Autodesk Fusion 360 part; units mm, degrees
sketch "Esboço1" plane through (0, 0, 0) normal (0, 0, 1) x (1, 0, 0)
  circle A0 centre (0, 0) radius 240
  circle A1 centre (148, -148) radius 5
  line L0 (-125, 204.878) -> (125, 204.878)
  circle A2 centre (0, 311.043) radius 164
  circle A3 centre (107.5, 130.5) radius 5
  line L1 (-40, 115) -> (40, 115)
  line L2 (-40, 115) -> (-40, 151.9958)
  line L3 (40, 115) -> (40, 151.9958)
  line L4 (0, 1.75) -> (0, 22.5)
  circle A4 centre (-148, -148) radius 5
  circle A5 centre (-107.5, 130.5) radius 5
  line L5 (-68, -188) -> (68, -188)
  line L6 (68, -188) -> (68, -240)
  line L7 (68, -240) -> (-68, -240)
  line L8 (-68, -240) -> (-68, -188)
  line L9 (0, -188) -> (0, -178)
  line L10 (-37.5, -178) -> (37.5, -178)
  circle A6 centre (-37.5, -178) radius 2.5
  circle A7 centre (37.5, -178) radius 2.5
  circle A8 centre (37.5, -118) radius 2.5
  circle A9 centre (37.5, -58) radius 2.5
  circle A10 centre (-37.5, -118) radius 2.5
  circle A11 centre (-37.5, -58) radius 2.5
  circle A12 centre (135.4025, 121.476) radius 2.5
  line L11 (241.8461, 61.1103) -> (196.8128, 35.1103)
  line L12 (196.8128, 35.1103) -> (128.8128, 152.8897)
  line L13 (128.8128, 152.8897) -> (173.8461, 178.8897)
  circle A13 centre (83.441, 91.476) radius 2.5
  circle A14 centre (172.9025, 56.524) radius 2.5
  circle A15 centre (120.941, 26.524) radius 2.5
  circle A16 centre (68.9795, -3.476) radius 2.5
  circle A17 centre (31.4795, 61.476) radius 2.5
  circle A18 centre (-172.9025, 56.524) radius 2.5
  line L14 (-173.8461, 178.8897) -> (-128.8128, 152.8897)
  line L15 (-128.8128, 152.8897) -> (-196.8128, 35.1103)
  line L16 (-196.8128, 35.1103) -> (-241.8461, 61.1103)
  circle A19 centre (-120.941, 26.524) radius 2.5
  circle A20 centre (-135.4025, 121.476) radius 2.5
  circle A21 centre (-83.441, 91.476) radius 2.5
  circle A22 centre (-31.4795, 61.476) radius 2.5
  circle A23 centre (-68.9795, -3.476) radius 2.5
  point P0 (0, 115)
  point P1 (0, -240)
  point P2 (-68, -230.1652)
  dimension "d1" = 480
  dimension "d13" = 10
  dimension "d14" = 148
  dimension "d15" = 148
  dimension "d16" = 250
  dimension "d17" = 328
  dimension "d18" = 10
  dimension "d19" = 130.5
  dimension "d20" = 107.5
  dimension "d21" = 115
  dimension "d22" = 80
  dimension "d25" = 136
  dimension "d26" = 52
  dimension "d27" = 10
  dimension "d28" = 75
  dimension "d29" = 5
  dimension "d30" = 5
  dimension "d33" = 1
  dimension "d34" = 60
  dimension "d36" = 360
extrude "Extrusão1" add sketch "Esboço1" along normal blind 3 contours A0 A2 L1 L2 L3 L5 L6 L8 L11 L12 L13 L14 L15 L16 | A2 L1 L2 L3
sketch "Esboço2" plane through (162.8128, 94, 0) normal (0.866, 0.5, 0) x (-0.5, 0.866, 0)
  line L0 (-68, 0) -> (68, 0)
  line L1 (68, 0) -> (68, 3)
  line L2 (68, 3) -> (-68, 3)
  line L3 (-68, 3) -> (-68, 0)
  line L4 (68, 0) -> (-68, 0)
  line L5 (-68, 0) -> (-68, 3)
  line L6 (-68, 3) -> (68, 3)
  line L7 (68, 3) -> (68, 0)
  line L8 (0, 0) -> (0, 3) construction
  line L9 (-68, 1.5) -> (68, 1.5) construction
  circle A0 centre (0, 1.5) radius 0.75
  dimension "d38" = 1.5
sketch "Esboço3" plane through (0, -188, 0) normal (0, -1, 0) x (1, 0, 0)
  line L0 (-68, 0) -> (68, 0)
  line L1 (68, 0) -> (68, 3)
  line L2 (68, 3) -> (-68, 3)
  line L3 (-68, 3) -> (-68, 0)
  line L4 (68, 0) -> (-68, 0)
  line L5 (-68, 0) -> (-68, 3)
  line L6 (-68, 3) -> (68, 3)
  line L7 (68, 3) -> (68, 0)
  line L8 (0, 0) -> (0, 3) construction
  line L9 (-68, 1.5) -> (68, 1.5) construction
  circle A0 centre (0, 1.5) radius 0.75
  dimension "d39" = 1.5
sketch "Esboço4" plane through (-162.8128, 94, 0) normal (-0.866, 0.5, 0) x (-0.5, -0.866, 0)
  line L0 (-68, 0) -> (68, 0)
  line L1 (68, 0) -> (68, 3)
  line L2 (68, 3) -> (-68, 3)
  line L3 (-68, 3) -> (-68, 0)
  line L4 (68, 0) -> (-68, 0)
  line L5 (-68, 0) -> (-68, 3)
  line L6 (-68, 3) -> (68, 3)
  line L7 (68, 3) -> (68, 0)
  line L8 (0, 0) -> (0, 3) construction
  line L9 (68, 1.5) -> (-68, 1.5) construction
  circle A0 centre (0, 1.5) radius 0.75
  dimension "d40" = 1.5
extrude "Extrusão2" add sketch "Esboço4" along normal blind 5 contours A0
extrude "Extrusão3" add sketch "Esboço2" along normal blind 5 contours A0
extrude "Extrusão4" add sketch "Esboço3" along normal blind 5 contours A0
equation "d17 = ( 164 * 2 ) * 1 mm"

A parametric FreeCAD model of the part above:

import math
import FreeCAD as App
import Part
import Sketcher
Q = App.Units.Quantity

doc = App.newDocument("Part")
params = doc.addObject("Spreadsheet::Sheet", "Params")
for row, (alias, value) in enumerate([
    ("sketch1_diameter", "10 mm"),
    ("sketch1_diameter2", "5 mm"),
    ("sketch1_radius", "240 mm"),
    ("sketch1_radius2", "164 mm"),
    ("sketch1_length", "136 mm"),
    ("pad1_length", "3 mm"),
    ("sketch2_diameter", "1.5 mm"),
    ("pad2_length", "5 mm"),
    ("sketch3_diameter", "1.5 mm"),
    ("pad3_length", "5 mm"),
    ("sketch4_diameter", "1.5 mm"),
    ("pad4_length", "5 mm"),
], start=1):
    params.set(f"A{row}", alias)
    params.set(f"B{row}", "=" + value)
    params.setAlias(f"B{row}", alias)

body = doc.addObject("PartDesign::Body", "Body")

sketch1 = body.newObject("Sketcher::SketchObject", "Sketch")
sketch1.AttachmentSupport = (doc.getObject("XY_Plane"), [""])
sketch1.MapMode = "FlatFace"
sketch1.addGeometry([
    Part.ArcOfCircle(Part.Circle(App.Vector(0, 0, 0), App.Vector(0, 0, 1), 240), math.radians(46.46), math.radians(58.61)),
    Part.ArcOfCircle(Part.Circle(App.Vector(0, 311, 0), App.Vector(0, 0, 1), 164), math.radians(-140), math.radians(-40)),
    Part.ArcOfCircle(Part.Circle(App.Vector(0, 0, 0), App.Vector(0, 0, 1), 240), math.radians(121.39), math.radians(133.54)),
    Part.LineSegment(App.Vector(-165.3, 174, 0), App.Vector(-128.8, 152.9, 0)),
    Part.LineSegment(App.Vector(-128.8, 152.9, 0), App.Vector(-196.8, 35.1, 0)),
    Part.LineSegment(App.Vector(-196.8, 35.1, 0), App.Vector(-233.3, 56.2, 0)),
    Part.ArcOfCircle(Part.Circle(App.Vector(0, 0, 0), App.Vector(0, 0, 1), 240), math.radians(166), math.radians(254)),
    Part.LineSegment(App.Vector(-68, -230.2, 0), App.Vector(-68, -188, 0)),
    Part.LineSegment(App.Vector(-68, -188, 0), App.Vector(0, -188, 0)),
    Part.LineSegment(App.Vector(0, -188, 0), App.Vector(68, -188, 0)),
    Part.LineSegment(App.Vector(68, -188, 0), App.Vector(68, -230.2, 0)),
    Part.ArcOfCircle(Part.Circle(App.Vector(0, 0, 0), App.Vector(0, 0, 1), 240), math.radians(-74), math.radians(14)),
    Part.LineSegment(App.Vector(233.3, 56.2, 0), App.Vector(196.8, 35.1, 0)),
    Part.LineSegment(App.Vector(196.8, 35.1, 0), App.Vector(128.8, 152.9, 0)),
    Part.LineSegment(App.Vector(128.8, 152.9, 0), App.Vector(165.3, 174, 0)),
    Part.Circle(App.Vector(-148, -148, 0), App.Vector(0, 0, 1), 5),
    Part.Circle(App.Vector(-37.5, -178, 0), App.Vector(0, 0, 1), 2.5),
    Part.Circle(App.Vector(-37.5, -118, 0), App.Vector(0, 0, 1), 2.5),
    Part.Circle(App.Vector(-120.9, 26.5, 0), App.Vector(0, 0, 1), 2.5),
    Part.Circle(App.Vector(-172.9, 56.5, 0), App.Vector(0, 0, 1), 2.5),
    Part.Circle(App.Vector(-69, -3.5, 0), App.Vector(0, 0, 1), 2.5),
    Part.Circle(App.Vector(-37.5, -58, 0), App.Vector(0, 0, 1), 2.5),
    Part.Circle(App.Vector(-83.4, 91.5, 0), App.Vector(0, 0, 1), 2.5),
    Part.Circle(App.Vector(-31.5, 61.5, 0), App.Vector(0, 0, 1), 2.5),
    Part.Circle(App.Vector(37.5, -178, 0), App.Vector(0, 0, 1), 2.5),
    Part.Circle(App.Vector(37.5, -118, 0), App.Vector(0, 0, 1), 2.5),
    Part.Circle(App.Vector(148, -148, 0), App.Vector(0, 0, 1), 5),
    Part.Circle(App.Vector(37.5, -58, 0), App.Vector(0, 0, 1), 2.5),
    Part.Circle(App.Vector(69, -3.5, 0), App.Vector(0, 0, 1), 2.5),
    Part.Circle(App.Vector(31.5, 61.5, 0), App.Vector(0, 0, 1), 2.5),
    Part.Circle(App.Vector(83.4, 91.5, 0), App.Vector(0, 0, 1), 2.5),
    Part.Circle(App.Vector(120.9, 26.5, 0), App.Vector(0, 0, 1), 2.5),
    Part.Circle(App.Vector(172.9, 56.5, 0), App.Vector(0, 0, 1), 2.5),
    Part.Circle(App.Vector(-135.4, 121.5, 0), App.Vector(0, 0, 1), 2.5),
    Part.Circle(App.Vector(-107.5, 130.5, 0), App.Vector(0, 0, 1), 5),
    Part.Circle(App.Vector(107.5, 130.5, 0), App.Vector(0, 0, 1), 5),
    Part.Circle(App.Vector(135.4, 121.5, 0), App.Vector(0, 0, 1), 2.5),
], False)
sketch1.addConstraint([
    Sketcher.Constraint("Coincident", 0, 2, 1, 2),
    Sketcher.Constraint("Coincident", 1, 1, 2, 1),
    Sketcher.Constraint("Coincident", 2, 2, 3, 1),
    Sketcher.Constraint("Coincident", 3, 2, 4, 1),
    Sketcher.Constraint("Coincident", 4, 2, 5, 1),
    Sketcher.Constraint("Coincident", 5, 2, 6, 1),
    Sketcher.Constraint("Coincident", 6, 2, 7, 1),
    Sketcher.Constraint("Coincident", 7, 2, 8, 1),
    Sketcher.Constraint("Coincident", 8, 2, 9, 1),
    Sketcher.Constraint("Coincident", 9, 2, 10, 1),
    Sketcher.Constraint("Coincident", 10, 2, 11, 1),
    Sketcher.Constraint("Coincident", 11, 2, 12, 1),
    Sketcher.Constraint("Coincident", 12, 2, 13, 1),
    Sketcher.Constraint("Coincident", 13, 2, 14, 1),
    Sketcher.Constraint("Coincident", 14, 2, 0, 1),
    Sketcher.Constraint("Vertical", 7),
    Sketcher.Constraint("Horizontal", 8),
    Sketcher.Constraint("Horizontal", 9),
    Sketcher.Constraint("Vertical", 10),
    Sketcher.Constraint("Coincident", 0, 3, -1, 1),
    Sketcher.Constraint("Coincident", 2, 3, -1, 1),
    Sketcher.Constraint("Coincident", 6, 3, -1, 1),
    Sketcher.Constraint("Coincident", 11, 3, -1, 1),
    Sketcher.Constraint("Equal", 0, 2),
    Sketcher.Constraint("Equal", 2, 6),
    Sketcher.Constraint("Equal", 6, 11),
    Sketcher.Constraint("Equal", 16, 17),
    Sketcher.Constraint("Equal", 17, 18),
    Sketcher.Constraint("Equal", 18, 19),
    Sketcher.Constraint("Equal", 19, 20),
    Sketcher.Constraint("Equal", 20, 21),
    Sketcher.Constraint("Equal", 21, 22),
    Sketcher.Constraint("Equal", 22, 23),
    Sketcher.Constraint("Equal", 23, 24),
    Sketcher.Constraint("Equal", 24, 25),
    Sketcher.Constraint("Equal", 15, 26),
    Sketcher.Constraint("Equal", 25, 27),
    Sketcher.Constraint("Equal", 27, 28),
    Sketcher.Constraint("Equal", 28, 29),
    Sketcher.Constraint("Equal", 29, 30),
    Sketcher.Constraint("Equal", 30, 31),
    Sketcher.Constraint("Equal", 31, 32),
    Sketcher.Constraint("Equal", 32, 33),
    Sketcher.Constraint("Equal", 26, 34),
    Sketcher.Constraint("Equal", 34, 35),
    Sketcher.Constraint("Equal", 33, 36),
    Sketcher.Constraint("Symmetric", 16, 3, 24, 3, -2),
    Sketcher.Constraint("Symmetric", 17, 3, 25, 3, -2),
    Sketcher.Constraint("Symmetric", 15, 3, 26, 3, -2),
    Sketcher.Constraint("Symmetric", 21, 3, 27, 3, -2),
    Sketcher.Constraint("Symmetric", 20, 3, 28, 3, -2),
    Sketcher.Constraint("Symmetric", 23, 3, 29, 3, -2),
    Sketcher.Constraint("Symmetric", 22, 3, 30, 3, -2),
    Sketcher.Constraint("Symmetric", 18, 3, 31, 3, -2),
    Sketcher.Constraint("Symmetric", 19, 3, 32, 3, -2),
    Sketcher.Constraint("Symmetric", 34, 3, 35, 3, -2),
    Sketcher.Constraint("Symmetric", 33, 3, 36, 3, -2),
    Sketcher.Constraint("Symmetric", 4, 2, 12, 2, -2),
    Sketcher.Constraint("Symmetric", 3, 2, 13, 2, -2),
    Sketcher.Constraint("PointOnObject", 1, 3, -2),
    Sketcher.Constraint("PointOnObject", 8, 2, -2),
    Sketcher.Constraint("Perpendicular", 3, 4),
    Sketcher.Constraint("Perpendicular", 4, 5),
    Sketcher.Constraint("Perpendicular", 12, 13),
    Sketcher.Constraint("Perpendicular", 13, 14),
    Sketcher.Constraint("Horizontal", 6, 2, 10, 2),
    Sketcher.Constraint("Vertical", 16, 3, 17, 3),
    Sketcher.Constraint("Vertical", 17, 3, 21, 3),
    Sketcher.Constraint("Equal", 3, 5),
    Sketcher.Constraint("Diameter", 15, 10.0),
    Sketcher.Constraint("Diameter", 16, 5.0),
    Sketcher.Constraint("Radius", 0, 240.0),
    Sketcher.Constraint("Radius", 1, 164.0),
    Sketcher.Constraint("Distance", 4, 136.0),
    Sketcher.Constraint("DistanceX", 15, 3, -1, 1, 148.0),
    Sketcher.Constraint("DistanceY", 15, 3, -1, 1, 148.0),
    Sketcher.Constraint("DistanceY", 16, 3, 17, 3, 60.0),
    Sketcher.Constraint("DistanceY", 17, 3, 21, 3, 60.0),
    Sketcher.Constraint("DistanceX", 16, 3, 24, 3, 75.0),
    Sketcher.Constraint("DistanceY", 28, 3, 32, 3, 60.0),
    Sketcher.Constraint("DistanceY", 23, 3, 33, 3, 60.0),
    Sketcher.Constraint("DistanceY", 7, 2, 16, 3, 10.0),
    Sketcher.Constraint("DistanceX", 15, 3, 7, 2, 80.0),
    Sketcher.Constraint("DistanceX", 34, 3, -1, 1, 107.5),
    Sketcher.Constraint("DistanceY", -1, 1, 34, 3, 130.5),
    Sketcher.Constraint("Angle", 3, Q("-30 deg")),
    Sketcher.Constraint("DistanceY", 16, 3, -1, 1, 178.0),
    Sketcher.Constraint("DistanceX", -1, 1, 0, 2, 125.0),
    Sketcher.Constraint("DistanceY", 18, 3, 19, 3, 30.0),
    Sketcher.Constraint("DistanceY", 23, 3, 22, 3, 30.0),
    Sketcher.Constraint("DistanceX", 18, 3, 22, 3, 37.5),
    Sketcher.Constraint("DistanceX", 19, 3, 33, 3, 37.5),
    Sketcher.Constraint("DistanceX", 18, 3, -1, 1, 120.941),
    Sketcher.Constraint("DistanceY", -1, 1, 18, 3, 26.524),
    Sketcher.Constraint("DistanceY", -1, 1, 22, 3, 91.476),
    Sketcher.Constraint("DistanceX", 23, 3, 29, 3, 62.959),
    Sketcher.Constraint("DistanceX", 28, 3, 32, 3, 103.923),
    Sketcher.Constraint("DistanceX", 29, 3, 32, 3, 141.423),
    Sketcher.Constraint("DistanceX", 5, 2, 4, 2, 36.516),
])
sketch1.setExpression("Constraints[69]", "Params.sketch1_diameter")
sketch1.setExpression("Constraints[70]", "Params.sketch1_diameter2")
sketch1.setExpression("Constraints[71]", "Params.sketch1_radius")
sketch1.setExpression("Constraints[72]", "Params.sketch1_radius2")
sketch1.setExpression("Constraints[73]", "Params.sketch1_length")
pad1 = body.newObject("PartDesign::Pad", "Pad")
pad1.Profile = sketch1
pad1.setExpression("Length", "Params.pad1_length")

sketch2 = body.newObject("Sketcher::SketchObject", "Sketch001")
sketch2.Placement = App.Placement(App.Vector(-162.8128, 94, 0), App.Rotation(App.Vector(-0.5, -0.866025404, 0), App.Vector(0, 0, 1), App.Vector(-0.866025404, 0.5, 0), "ZXY"))
sketch2.addGeometry(Part.Circle(App.Vector(0, 1.5, 0), App.Vector(0, 0, 1), 0.8), False)
sketch2.addConstraint([
    Sketcher.Constraint("PointOnObject", 0, 3, -2),
    Sketcher.Constraint("Diameter", 0, 1.5),
    Sketcher.Constraint("DistanceY", -1, 1, 0, 3, 1.5),
])
sketch2.setExpression("Constraints[1]", "Params.sketch2_diameter")
pad2 = body.newObject("PartDesign::Pad", "Pad001")
pad2.Profile = sketch2
pad2.setExpression("Length", "Params.pad2_length")

sketch3 = body.newObject("Sketcher::SketchObject", "Sketch002")
sketch3.Placement = App.Placement(App.Vector(162.8128, 94, 0), App.Rotation(App.Vector(-0.5, 0.866025404, 0), App.Vector(0, 0, 1), App.Vector(0.866025404, 0.5, 0), "ZXY"))
sketch3.addGeometry(Part.Circle(App.Vector(0, 1.5, 0), App.Vector(0, 0, 1), 0.8), False)
sketch3.addConstraint([
    Sketcher.Constraint("PointOnObject", 0, 3, -2),
    Sketcher.Constraint("Diameter", 0, 1.5),
    Sketcher.Constraint("DistanceY", -1, 1, 0, 3, 1.5),
])
sketch3.setExpression("Constraints[1]", "Params.sketch3_diameter")
pad3 = body.newObject("PartDesign::Pad", "Pad002")
pad3.Profile = sketch3
pad3.setExpression("Length", "Params.pad3_length")

sketch4 = body.newObject("Sketcher::SketchObject", "Sketch003")
sketch4.AttachmentSupport = (doc.getObject("XZ_Plane"), [""])
sketch4.MapMode = "FlatFace"
sketch4.AttachmentOffset = App.Placement(App.Vector(0, 0, 188), App.Rotation())
sketch4.addGeometry(Part.Circle(App.Vector(0, 1.5, 0), App.Vector(0, 0, 1), 0.8), False)
sketch4.addConstraint([
    Sketcher.Constraint("PointOnObject", 0, 3, -2),
    Sketcher.Constraint("Diameter", 0, 1.5),
    Sketcher.Constraint("DistanceY", -1, 1, 0, 3, 1.5),
])
sketch4.setExpression("Constraints[1]", "Params.sketch4_diameter")
pad4 = body.newObject("PartDesign::Pad", "Pad003")
pad4.Profile = sketch4
pad4.setExpression("Length", "Params.pad4_length")

doc.recompute()
